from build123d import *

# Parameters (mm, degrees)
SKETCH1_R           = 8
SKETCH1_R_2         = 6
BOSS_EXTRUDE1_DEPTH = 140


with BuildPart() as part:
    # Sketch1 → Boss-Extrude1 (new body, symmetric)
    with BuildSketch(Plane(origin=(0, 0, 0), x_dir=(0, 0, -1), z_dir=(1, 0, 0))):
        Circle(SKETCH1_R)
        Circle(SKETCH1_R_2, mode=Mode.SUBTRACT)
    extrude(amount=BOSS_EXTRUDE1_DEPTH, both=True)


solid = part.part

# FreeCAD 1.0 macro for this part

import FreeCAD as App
import Part
import Sketcher

V = App.Vector

doc = App.newDocument("Part")
params = doc.addObject("Spreadsheet::Sheet", "Params")
for row, (alias, value) in enumerate([
    ("sketch1_diameter", "16 mm"),
    ("sketch1_diameter2", "12 mm"),
    ("pad1_length", "280 mm"),
], start=1):
    params.set(f"A{row}", alias)
    params.set(f"B{row}", "=" + value)
    params.setAlias(f"B{row}", alias)

body = doc.addObject("PartDesign::Body", "Body")

sketch1 = body.newObject("Sketcher::SketchObject", "Sketch")
sketch1.AttachmentSupport = (doc.getObject("YZ_Plane"), [""])
sketch1.MapMode = "FlatFace"
sketch1.addGeometry(Part.Circle(V(0, 0, 0), V(0, 0, 1), 8), False)
sketch1.addGeometry(Part.Circle(V(0, 0, 0), V(0, 0, 1), 6), False)
sketch1.addConstraint(Sketcher.Constraint("Coincident", 0, 3, -1, 1))
sketch1.addConstraint(Sketcher.Constraint("Coincident", 1, 3, -1, 1))
sketch1.addConstraint(Sketcher.Constraint("Diameter", 0, 16.0))
sketch1.addConstraint(Sketcher.Constraint("Diameter", 1, 12.0))
sketch1.setExpression("Constraints[2]", "Params.sketch1_diameter")
sketch1.setExpression("Constraints[3]", "Params.sketch1_diameter2")
pad1 = body.newObject("PartDesign::Pad", "Pad")
pad1.Profile = sketch1
pad1.setExpression("Length", "Params.pad1_length")
pad1.Midplane = True

doc.recompute()
